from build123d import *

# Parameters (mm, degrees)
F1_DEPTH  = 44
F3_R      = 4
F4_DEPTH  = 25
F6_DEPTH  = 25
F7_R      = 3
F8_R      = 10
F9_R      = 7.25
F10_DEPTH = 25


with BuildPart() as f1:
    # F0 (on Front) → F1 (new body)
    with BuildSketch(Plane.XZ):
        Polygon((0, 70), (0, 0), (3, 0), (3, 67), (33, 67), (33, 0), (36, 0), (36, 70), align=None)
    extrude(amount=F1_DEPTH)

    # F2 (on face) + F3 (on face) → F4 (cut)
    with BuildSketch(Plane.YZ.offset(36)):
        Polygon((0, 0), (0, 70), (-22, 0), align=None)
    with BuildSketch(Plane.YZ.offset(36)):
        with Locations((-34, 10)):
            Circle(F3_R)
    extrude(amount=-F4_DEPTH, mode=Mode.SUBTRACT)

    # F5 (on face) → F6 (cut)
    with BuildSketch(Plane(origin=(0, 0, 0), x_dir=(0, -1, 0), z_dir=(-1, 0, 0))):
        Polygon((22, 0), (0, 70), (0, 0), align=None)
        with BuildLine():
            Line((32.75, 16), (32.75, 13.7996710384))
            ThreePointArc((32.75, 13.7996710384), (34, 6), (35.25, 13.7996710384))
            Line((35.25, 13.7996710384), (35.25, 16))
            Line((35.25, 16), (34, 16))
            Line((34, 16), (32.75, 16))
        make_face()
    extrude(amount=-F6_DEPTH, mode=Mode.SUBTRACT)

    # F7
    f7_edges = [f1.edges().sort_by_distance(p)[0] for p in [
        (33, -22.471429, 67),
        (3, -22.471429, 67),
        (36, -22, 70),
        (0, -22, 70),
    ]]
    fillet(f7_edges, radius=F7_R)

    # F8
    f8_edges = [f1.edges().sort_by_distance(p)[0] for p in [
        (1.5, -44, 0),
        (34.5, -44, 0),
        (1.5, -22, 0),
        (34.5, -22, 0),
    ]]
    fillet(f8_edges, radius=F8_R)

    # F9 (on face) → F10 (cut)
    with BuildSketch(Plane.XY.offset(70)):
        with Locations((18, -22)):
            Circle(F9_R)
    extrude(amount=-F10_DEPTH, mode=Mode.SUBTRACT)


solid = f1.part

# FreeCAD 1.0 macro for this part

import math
import FreeCAD as App
import Part
import Sketcher

V = App.Vector


def edges_at(feature, points):
    """Names of the edges that pass closest to the given points."""
    edges = feature.Shape.Edges
    near = lambda p: min(range(len(edges)), key=lambda i: edges[i].distToShape(Part.Vertex(*p))[0])
    return sorted({f"Edge{near(p) + 1}" for p in points})

doc = App.newDocument("Part")
body = doc.addObject("PartDesign::Body", "Body")

# Sketch on XZ plane
sketch1 = doc.addObject("Sketcher::SketchObject", "Sketch")
body.addObject(sketch1)
sketch1.AttachmentSupport = (doc.XZ_Plane, [""])
sketch1.MapMode = "FlatFace"
sketch1.addGeometry(Part.LineSegment(V(0, 70, 0), V(0, 0, 0)), False)
sketch1.addGeometry(Part.LineSegment(V(0, 0, 0), V(3, 0, 0)), False)
sketch1.addGeometry(Part.LineSegment(V(3, 0, 0), V(3, 67, 0)), False)
sketch1.addGeometry(Part.LineSegment(V(3, 67, 0), V(33, 67, 0)), False)
sketch1.addGeometry(Part.LineSegment(V(33, 67, 0), V(33, 0, 0)), False)
sketch1.addGeometry(Part.LineSegment(V(33, 0, 0), V(36, 0, 0)), False)
sketch1.addGeometry(Part.LineSegment(V(36, 0, 0), V(36, 70, 0)), False)
sketch1.addGeometry(Part.LineSegment(V(36, 70, 0), V(0, 70, 0)), False)
sketch1.addConstraint(Sketcher.Constraint("Coincident", 0, 2, 1, 1))
sketch1.addConstraint(Sketcher.Constraint("Coincident", 1, 2, 2, 1))
sketch1.addConstraint(Sketcher.Constraint("Coincident", 2, 2, 3, 1))
sketch1.addConstraint(Sketcher.Constraint("Coincident", 3, 2, 4, 1))
sketch1.addConstraint(Sketcher.Constraint("Coincident", 4, 2, 5, 1))
sketch1.addConstraint(Sketcher.Constraint("Coincident", 5, 2, 6, 1))
sketch1.addConstraint(Sketcher.Constraint("Coincident", 6, 2, 7, 1))
sketch1.addConstraint(Sketcher.Constraint("Coincident", 7, 2, 0, 1))
sketch1.addConstraint(Sketcher.Constraint("Vertical", 0))
sketch1.addConstraint(Sketcher.Constraint("Horizontal", 1))
sketch1.addConstraint(Sketcher.Constraint("Vertical", 2))
sketch1.addConstraint(Sketcher.Constraint("Horizontal", 3))
sketch1.addConstraint(Sketcher.Constraint("Vertical", 4))
sketch1.addConstraint(Sketcher.Constraint("Horizontal", 5))
sketch1.addConstraint(Sketcher.Constraint("Vertical", 6))
sketch1.addConstraint(Sketcher.Constraint("Horizontal", 7))
sketch1.addConstraint(Sketcher.Constraint("Coincident", 0, 2, -1, 1))
sketch1.addConstraint(Sketcher.Constraint("PointOnObject", 4, 2, -1))
sketch1.addConstraint(Sketcher.Constraint("Equal", 1, 5))
sketch1.addConstraint(Sketcher.Constraint("DistanceX", 1, 1, 1, 2, 3.0))
sketch1.addConstraint(Sketcher.Constraint("DistanceX", 3, 1, 3, 2, 30.0))
sketch1.addConstraint(Sketcher.Constraint("DistanceY", 0, 2, 0, 1, 70.0))
sketch1.addConstraint(Sketcher.Constraint("DistanceY", 2, 1, 2, 2, 67.0))
pad1 = doc.addObject("PartDesign::Pad", "Pad")
body.addObject(pad1)
pad1.Profile = sketch1
pad1.Length = 44

# Sketch on YZ plane
sketch2 = doc.addObject("Sketcher::SketchObject", "Sketch001")
body.addObject(sketch2)
sketch2.AttachmentSupport = (doc.YZ_Plane, [""])
sketch2.MapMode = "FlatFace"
sketch2.AttachmentOffset = App.Placement(V(0, 0, 36), App.Rotation())
sketch2.addGeometry(Part.LineSegment(V(0, 0, 0), V(0, 70, 0)), False)
sketch2.addGeometry(Part.LineSegment(V(0, 70, 0), V(-22, 0, 0)), False)
sketch2.addGeometry(Part.LineSegment(V(-22, 0, 0), V(0, 0, 0)), False)
sketch2.addGeometry(Part.Circle(V(-34, 10, 0), V(0, 0, 1), 4), False)
sketch2.addConstraint(Sketcher.Constraint("Coincident", 0, 2, 1, 1))
sketch2.addConstraint(Sketcher.Constraint("Coincident", 1, 2, 2, 1))
sketch2.addConstraint(Sketcher.Constraint("Coincident", 2, 2, 0, 1))
sketch2.addConstraint(Sketcher.Constraint("Vertical", 0))
sketch2.addConstraint(Sketcher.Constraint("Horizontal", 2))
sketch2.addConstraint(Sketcher.Constraint("Coincident", 2, 2, -1, 1))
sketch2.addConstraint(Sketcher.Constraint("Diameter", 3, 8.0))
sketch2.addConstraint(Sketcher.Constraint("DistanceX", 2, 1, 2, 2, 22.0))
sketch2.addConstraint(Sketcher.Constraint("DistanceY", 0, 1, 0, 2, 70.0))
sketch2.addConstraint(Sketcher.Constraint("DistanceX", 3, 3, -1, 1, 34.0))
sketch2.addConstraint(Sketcher.Constraint("DistanceY", -1, 1, 3, 3, 10.0))
pocket1 = doc.addObject("PartDesign::Pocket", "Pocket")
body.addObject(pocket1)
pocket1.Profile = sketch2
pocket1.Length = 25

# Sketch on YZ plane
sketch3 = doc.addObject("Sketcher::SketchObject", "Sketch002")
body.addObject(sketch3)
sketch3.AttachmentSupport = (doc.YZ_Plane, [""])
sketch3.MapMode = "FlatFace"
sketch3.addGeometry(Part.LineSegment(V(-22, 0, 0), V(0, 70, 0)), False)
sketch3.addGeometry(Part.LineSegment(V(0, 70, 0), V(0, 0, 0)), False)
sketch3.addGeometry(Part.LineSegment(V(0, 0, 0), V(-22, 0, 0)), False)
sketch3.addGeometry(Part.LineSegment(V(-32.75, 16, 0), V(-32.75, 13.799671, 0)), False)
sketch3.addGeometry(Part.ArcOfCircle(Part.Circle(V(-34, 10, 0), V(0, 0, 1), 4), math.radians(108.209957), math.radians(431.790043)), False)
sketch3.addGeometry(Part.LineSegment(V(-35.25, 13.799671, 0), V(-35.25, 16, 0)), False)
sketch3.addGeometry(Part.LineSegment(V(-35.25, 16, 0), V(-32.75, 16, 0)), False)
sketch3.addConstraint(Sketcher.Constraint("Coincident", 0, 2, 1, 1))
sketch3.addConstraint(Sketcher.Constraint("Coincident", 1, 2, 2, 1))
sketch3.addConstraint(Sketcher.Constraint("Coincident", 2, 2, 0, 1))
sketch3.addConstraint(Sketcher.Constraint("Coincident", 3, 2, 4, 2))
sketch3.addConstraint(Sketcher.Constraint("Coincident", 4, 1, 5, 1))
sketch3.addConstraint(Sketcher.Constraint("Coincident", 5, 2, 6, 1))
sketch3.addConstraint(Sketcher.Constraint("Coincident", 6, 2, 3, 1))
sketch3.addConstraint(Sketcher.Constraint("Vertical", 1))
sketch3.addConstraint(Sketcher.Constraint("Horizontal", 2))
sketch3.addConstraint(Sketcher.Constraint("Vertical", 3))
sketch3.addConstraint(Sketcher.Constraint("Vertical", 5))
sketch3.addConstraint(Sketcher.Constraint("Horizontal", 6))
sketch3.addConstraint(Sketcher.Constraint("Coincident", 1, 2, -1, 1))
sketch3.addConstraint(Sketcher.Constraint("Horizontal", 3, 2, 4, 1))
sketch3.addConstraint(Sketcher.Constraint("Radius", 4, 4.0))
sketch3.addConstraint(Sketcher.Constraint("DistanceX", 2, 2, 2, 1, 22.0))
sketch3.addConstraint(Sketcher.Constraint("DistanceY", 1, 2, 1, 1, 70.0))
sketch3.addConstraint(Sketcher.Constraint("DistanceX", 6, 1, 6, 2, 2.5))
sketch3.addConstraint(Sketcher.Constraint("DistanceX", 4, 3, -1, 1, 34.0))
sketch3.addConstraint(Sketcher.Constraint("DistanceY", -1, 1, 4, 3, 10.0))
sketch3.addConstraint(Sketcher.Constraint("DistanceY", -1, 1, 5, 2, 16.0))
pocket2 = doc.addObject("PartDesign::Pocket", "Pocket001")
body.addObject(pocket2)
pocket2.Profile = sketch3
pocket2.Length = 25
pocket2.Reversed = True
doc.recompute()

fillet = doc.addObject("PartDesign::Fillet", "Fillet")
body.addObject(fillet)
fillet.Base = (pocket2, edges_at(pocket2, [
    (33, -22.471, 67),
    (3, -22.471, 67),
    (36, -22, 70),
    (0, -22, 70),
]))
fillet.Radius = 3
doc.recompute()

fillet2 = doc.addObject("PartDesign::Fillet", "Fillet001")
body.addObject(fillet2)
fillet2.Base = (fillet, edges_at(fillet, [
    (1.5, -44, 0),
    (34.5, -44, 0),
    (1.5, -22, 0),
    (34.5, -22, 0),
]))
fillet2.Radius = 10

# Sketch on XY plane
sketch4 = doc.addObject("Sketcher::SketchObject", "Sketch003")
body.addObject(sketch4)
sketch4.AttachmentSupport = (doc.XY_Plane, [""])
sketch4.MapMode = "FlatFace"
sketch4.AttachmentOffset = App.Placement(V(0, 0, 70), App.Rotation())
sketch4.addGeometry(Part.Circle(V(18, -22, 0), V(0, 0, 1), 7.25), False)
sketch4.addConstraint(Sketcher.Constraint("Diameter", 0, 14.5))
sketch4.addConstraint(Sketcher.Constraint("DistanceX", -1, 1, 0, 3, 18.0))
sketch4.addConstraint(Sketcher.Constraint("DistanceY", 0, 3, -1, 1, 22.0))
pocket3 = doc.addObject("PartDesign::Pocket", "Pocket002")
body.addObject(pocket3)
pocket3.Profile = sketch4
pocket3.Length = 25

doc.recompute()
